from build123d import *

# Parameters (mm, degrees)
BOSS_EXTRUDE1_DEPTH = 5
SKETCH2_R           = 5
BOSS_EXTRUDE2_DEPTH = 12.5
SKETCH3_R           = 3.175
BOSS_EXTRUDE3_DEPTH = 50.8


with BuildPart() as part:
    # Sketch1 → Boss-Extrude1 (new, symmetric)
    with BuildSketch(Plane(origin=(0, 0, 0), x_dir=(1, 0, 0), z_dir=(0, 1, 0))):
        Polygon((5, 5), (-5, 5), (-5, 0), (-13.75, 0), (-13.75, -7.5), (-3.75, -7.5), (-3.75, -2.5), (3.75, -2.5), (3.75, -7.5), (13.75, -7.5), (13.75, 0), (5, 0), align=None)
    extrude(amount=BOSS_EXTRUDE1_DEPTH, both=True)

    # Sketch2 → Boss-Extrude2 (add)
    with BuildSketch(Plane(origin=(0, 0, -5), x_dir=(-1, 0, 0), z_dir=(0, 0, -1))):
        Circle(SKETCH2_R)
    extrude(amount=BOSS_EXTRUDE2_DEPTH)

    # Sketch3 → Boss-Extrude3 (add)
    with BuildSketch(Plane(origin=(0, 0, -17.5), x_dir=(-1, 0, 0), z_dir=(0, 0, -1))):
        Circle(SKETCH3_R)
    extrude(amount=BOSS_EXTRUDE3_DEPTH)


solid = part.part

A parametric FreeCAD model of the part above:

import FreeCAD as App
import Part
import Sketcher

V = App.Vector

doc = App.newDocument("Part")
params = doc.addObject("Spreadsheet::Sheet", "Params")
for row, (alias, value) in enumerate([
    ("sketch1_width", "10 mm"),
    ("sketch1_height", "5 mm"),
    ("sketch1_width2", "7.5 mm"),
    ("pad1_length", "10 mm"),
    ("sketch2_diameter", "10 mm"),
    ("pad2_length", "12.5 mm"),
    ("sketch3_diameter", "6.35 mm"),
    ("pad3_length", "50.8 mm"),
], start=1):
    params.set(f"A{row}", alias)
    params.set(f"B{row}", "=" + value)
    params.setAlias(f"B{row}", alias)

body = doc.addObject("PartDesign::Body", "Body")

sketch1 = body.newObject("Sketcher::SketchObject", "Sketch")
sketch1.AttachmentSupport = (doc.getObject("XZ_Plane"), [""])
sketch1.MapMode = "FlatFace"
sketch1.addGeometry([
    Part.LineSegment(V(5, -5, 0), V(-5, -5, 0)),
    Part.LineSegment(V(-5, -5, 0), V(-5, 0, 0)),
    Part.LineSegment(V(-5, 0, 0), V(-14, 0, 0)),
    Part.LineSegment(V(-14, 0, 0), V(-14, 8, 0)),
    Part.LineSegment(V(-14, 8, 0), V(-4, 8, 0)),
    Part.LineSegment(V(-4, 8, 0), V(-4, 2, 0)),
    Part.LineSegment(V(-4, 2, 0), V(4, 2, 0)),
    Part.LineSegment(V(4, 2, 0), V(4, 8, 0)),
    Part.LineSegment(V(4, 8, 0), V(14, 8, 0)),
    Part.LineSegment(V(14, 8, 0), V(14, 0, 0)),
    Part.LineSegment(V(14, 0, 0), V(5, 0, 0)),
    Part.LineSegment(V(5, 0, 0), V(5, -5, 0)),
], False)
sketch1.addConstraint([
    Sketcher.Constraint("Coincident", 0, 2, 1, 1),
    Sketcher.Constraint("Coincident", 1, 2, 2, 1),
    Sketcher.Constraint("Coincident", 2, 2, 3, 1),
    Sketcher.Constraint("Coincident", 3, 2, 4, 1),
    Sketcher.Constraint("Coincident", 4, 2, 5, 1),
    Sketcher.Constraint("Coincident", 5, 2, 6, 1),
    Sketcher.Constraint("Coincident", 6, 2, 7, 1),
    Sketcher.Constraint("Coincident", 7, 2, 8, 1),
    Sketcher.Constraint("Coincident", 8, 2, 9, 1),
    Sketcher.Constraint("Coincident", 9, 2, 10, 1),
    Sketcher.Constraint("Coincident", 10, 2, 11, 1),
    Sketcher.Constraint("Coincident", 11, 2, 0, 1),
    Sketcher.Constraint("Horizontal", 0),
    Sketcher.Constraint("Vertical", 1),
    Sketcher.Constraint("Horizontal", 2),
    Sketcher.Constraint("Vertical", 3),
    Sketcher.Constraint("Horizontal", 4),
    Sketcher.Constraint("Vertical", 5),
    Sketcher.Constraint("Horizontal", 6),
    Sketcher.Constraint("Vertical", 7),
    Sketcher.Constraint("Horizontal", 8),
    Sketcher.Constraint("Vertical", 9),
    Sketcher.Constraint("Horizontal", 10),
    Sketcher.Constraint("Vertical", 11),
    Sketcher.Constraint("Symmetric", 2, 2, 9, 2, -1, 1),
    Sketcher.Constraint("Symmetric", 4, 2, 7, 2, -2),
    Sketcher.Constraint("Symmetric", 1, 2, 10, 2, -2),
    Sketcher.Constraint("Equal", 0, 4),
    Sketcher.Constraint("Equal", 6, 3),
    Sketcher.Constraint("Equal", 1, 5),
    Sketcher.Constraint("DistanceX", 0, 2, 0, 1, 10.0),
    Sketcher.Constraint("DistanceY", 1, 1, 1, 2, 5.0),
    Sketcher.Constraint("DistanceX", 6, 1, 6, 2, 7.5),
])
sketch1.setExpression("Constraints[30]", "Params.sketch1_width")
sketch1.setExpression("Constraints[31]", "Params.sketch1_height")
sketch1.setExpression("Constraints[32]", "Params.sketch1_width2")
pad1 = body.newObject("PartDesign::Pad", "Pad")
pad1.Profile = sketch1
pad1.setExpression("Length", "Params.pad1_length")
pad1.Midplane = True

sketch2 = body.newObject("Sketcher::SketchObject", "Sketch001")
sketch2.AttachmentSupport = (doc.getObject("XY_Plane"), [""])
sketch2.MapMode = "FlatFace"
sketch2.AttachmentOffset = App.Placement(V(0, 0, -5), App.Rotation())
sketch2.addGeometry(Part.Circle(V(0, 0, 0), V(0, 0, 1), 5), False)
sketch2.addConstraint([
    Sketcher.Constraint("Coincident", 0, 3, -1, 1),
    Sketcher.Constraint("Diameter", 0, 10.0),
])
sketch2.setExpression("Constraints[1]", "Params.sketch2_diameter")
pad2 = body.newObject("PartDesign::Pad", "Pad001")
pad2.Profile = sketch2
pad2.setExpression("Length", "Params.pad2_length")
pad2.Reversed = True

sketch3 = body.newObject("Sketcher::SketchObject", "Sketch002")
sketch3.AttachmentSupport = (doc.getObject("XY_Plane"), [""])
sketch3.MapMode = "FlatFace"
sketch3.AttachmentOffset = App.Placement(V(0, 0, -17.5), App.Rotation())
sketch3.addGeometry(Part.Circle(V(0, 0, 0), V(0, 0, 1), 3.2), False)
sketch3.addConstraint([
    Sketcher.Constraint("Coincident", 0, 3, -1, 1),
    Sketcher.Constraint("Diameter", 0, 6.35),
])
sketch3.setExpression("Constraints[1]", "Params.sketch3_diameter")
pad3 = body.newObject("PartDesign::Pad", "Pad002")
pad3.Profile = sketch3
pad3.setExpression("Length", "Params.pad3_length")
pad3.Reversed = True

doc.recompute()
